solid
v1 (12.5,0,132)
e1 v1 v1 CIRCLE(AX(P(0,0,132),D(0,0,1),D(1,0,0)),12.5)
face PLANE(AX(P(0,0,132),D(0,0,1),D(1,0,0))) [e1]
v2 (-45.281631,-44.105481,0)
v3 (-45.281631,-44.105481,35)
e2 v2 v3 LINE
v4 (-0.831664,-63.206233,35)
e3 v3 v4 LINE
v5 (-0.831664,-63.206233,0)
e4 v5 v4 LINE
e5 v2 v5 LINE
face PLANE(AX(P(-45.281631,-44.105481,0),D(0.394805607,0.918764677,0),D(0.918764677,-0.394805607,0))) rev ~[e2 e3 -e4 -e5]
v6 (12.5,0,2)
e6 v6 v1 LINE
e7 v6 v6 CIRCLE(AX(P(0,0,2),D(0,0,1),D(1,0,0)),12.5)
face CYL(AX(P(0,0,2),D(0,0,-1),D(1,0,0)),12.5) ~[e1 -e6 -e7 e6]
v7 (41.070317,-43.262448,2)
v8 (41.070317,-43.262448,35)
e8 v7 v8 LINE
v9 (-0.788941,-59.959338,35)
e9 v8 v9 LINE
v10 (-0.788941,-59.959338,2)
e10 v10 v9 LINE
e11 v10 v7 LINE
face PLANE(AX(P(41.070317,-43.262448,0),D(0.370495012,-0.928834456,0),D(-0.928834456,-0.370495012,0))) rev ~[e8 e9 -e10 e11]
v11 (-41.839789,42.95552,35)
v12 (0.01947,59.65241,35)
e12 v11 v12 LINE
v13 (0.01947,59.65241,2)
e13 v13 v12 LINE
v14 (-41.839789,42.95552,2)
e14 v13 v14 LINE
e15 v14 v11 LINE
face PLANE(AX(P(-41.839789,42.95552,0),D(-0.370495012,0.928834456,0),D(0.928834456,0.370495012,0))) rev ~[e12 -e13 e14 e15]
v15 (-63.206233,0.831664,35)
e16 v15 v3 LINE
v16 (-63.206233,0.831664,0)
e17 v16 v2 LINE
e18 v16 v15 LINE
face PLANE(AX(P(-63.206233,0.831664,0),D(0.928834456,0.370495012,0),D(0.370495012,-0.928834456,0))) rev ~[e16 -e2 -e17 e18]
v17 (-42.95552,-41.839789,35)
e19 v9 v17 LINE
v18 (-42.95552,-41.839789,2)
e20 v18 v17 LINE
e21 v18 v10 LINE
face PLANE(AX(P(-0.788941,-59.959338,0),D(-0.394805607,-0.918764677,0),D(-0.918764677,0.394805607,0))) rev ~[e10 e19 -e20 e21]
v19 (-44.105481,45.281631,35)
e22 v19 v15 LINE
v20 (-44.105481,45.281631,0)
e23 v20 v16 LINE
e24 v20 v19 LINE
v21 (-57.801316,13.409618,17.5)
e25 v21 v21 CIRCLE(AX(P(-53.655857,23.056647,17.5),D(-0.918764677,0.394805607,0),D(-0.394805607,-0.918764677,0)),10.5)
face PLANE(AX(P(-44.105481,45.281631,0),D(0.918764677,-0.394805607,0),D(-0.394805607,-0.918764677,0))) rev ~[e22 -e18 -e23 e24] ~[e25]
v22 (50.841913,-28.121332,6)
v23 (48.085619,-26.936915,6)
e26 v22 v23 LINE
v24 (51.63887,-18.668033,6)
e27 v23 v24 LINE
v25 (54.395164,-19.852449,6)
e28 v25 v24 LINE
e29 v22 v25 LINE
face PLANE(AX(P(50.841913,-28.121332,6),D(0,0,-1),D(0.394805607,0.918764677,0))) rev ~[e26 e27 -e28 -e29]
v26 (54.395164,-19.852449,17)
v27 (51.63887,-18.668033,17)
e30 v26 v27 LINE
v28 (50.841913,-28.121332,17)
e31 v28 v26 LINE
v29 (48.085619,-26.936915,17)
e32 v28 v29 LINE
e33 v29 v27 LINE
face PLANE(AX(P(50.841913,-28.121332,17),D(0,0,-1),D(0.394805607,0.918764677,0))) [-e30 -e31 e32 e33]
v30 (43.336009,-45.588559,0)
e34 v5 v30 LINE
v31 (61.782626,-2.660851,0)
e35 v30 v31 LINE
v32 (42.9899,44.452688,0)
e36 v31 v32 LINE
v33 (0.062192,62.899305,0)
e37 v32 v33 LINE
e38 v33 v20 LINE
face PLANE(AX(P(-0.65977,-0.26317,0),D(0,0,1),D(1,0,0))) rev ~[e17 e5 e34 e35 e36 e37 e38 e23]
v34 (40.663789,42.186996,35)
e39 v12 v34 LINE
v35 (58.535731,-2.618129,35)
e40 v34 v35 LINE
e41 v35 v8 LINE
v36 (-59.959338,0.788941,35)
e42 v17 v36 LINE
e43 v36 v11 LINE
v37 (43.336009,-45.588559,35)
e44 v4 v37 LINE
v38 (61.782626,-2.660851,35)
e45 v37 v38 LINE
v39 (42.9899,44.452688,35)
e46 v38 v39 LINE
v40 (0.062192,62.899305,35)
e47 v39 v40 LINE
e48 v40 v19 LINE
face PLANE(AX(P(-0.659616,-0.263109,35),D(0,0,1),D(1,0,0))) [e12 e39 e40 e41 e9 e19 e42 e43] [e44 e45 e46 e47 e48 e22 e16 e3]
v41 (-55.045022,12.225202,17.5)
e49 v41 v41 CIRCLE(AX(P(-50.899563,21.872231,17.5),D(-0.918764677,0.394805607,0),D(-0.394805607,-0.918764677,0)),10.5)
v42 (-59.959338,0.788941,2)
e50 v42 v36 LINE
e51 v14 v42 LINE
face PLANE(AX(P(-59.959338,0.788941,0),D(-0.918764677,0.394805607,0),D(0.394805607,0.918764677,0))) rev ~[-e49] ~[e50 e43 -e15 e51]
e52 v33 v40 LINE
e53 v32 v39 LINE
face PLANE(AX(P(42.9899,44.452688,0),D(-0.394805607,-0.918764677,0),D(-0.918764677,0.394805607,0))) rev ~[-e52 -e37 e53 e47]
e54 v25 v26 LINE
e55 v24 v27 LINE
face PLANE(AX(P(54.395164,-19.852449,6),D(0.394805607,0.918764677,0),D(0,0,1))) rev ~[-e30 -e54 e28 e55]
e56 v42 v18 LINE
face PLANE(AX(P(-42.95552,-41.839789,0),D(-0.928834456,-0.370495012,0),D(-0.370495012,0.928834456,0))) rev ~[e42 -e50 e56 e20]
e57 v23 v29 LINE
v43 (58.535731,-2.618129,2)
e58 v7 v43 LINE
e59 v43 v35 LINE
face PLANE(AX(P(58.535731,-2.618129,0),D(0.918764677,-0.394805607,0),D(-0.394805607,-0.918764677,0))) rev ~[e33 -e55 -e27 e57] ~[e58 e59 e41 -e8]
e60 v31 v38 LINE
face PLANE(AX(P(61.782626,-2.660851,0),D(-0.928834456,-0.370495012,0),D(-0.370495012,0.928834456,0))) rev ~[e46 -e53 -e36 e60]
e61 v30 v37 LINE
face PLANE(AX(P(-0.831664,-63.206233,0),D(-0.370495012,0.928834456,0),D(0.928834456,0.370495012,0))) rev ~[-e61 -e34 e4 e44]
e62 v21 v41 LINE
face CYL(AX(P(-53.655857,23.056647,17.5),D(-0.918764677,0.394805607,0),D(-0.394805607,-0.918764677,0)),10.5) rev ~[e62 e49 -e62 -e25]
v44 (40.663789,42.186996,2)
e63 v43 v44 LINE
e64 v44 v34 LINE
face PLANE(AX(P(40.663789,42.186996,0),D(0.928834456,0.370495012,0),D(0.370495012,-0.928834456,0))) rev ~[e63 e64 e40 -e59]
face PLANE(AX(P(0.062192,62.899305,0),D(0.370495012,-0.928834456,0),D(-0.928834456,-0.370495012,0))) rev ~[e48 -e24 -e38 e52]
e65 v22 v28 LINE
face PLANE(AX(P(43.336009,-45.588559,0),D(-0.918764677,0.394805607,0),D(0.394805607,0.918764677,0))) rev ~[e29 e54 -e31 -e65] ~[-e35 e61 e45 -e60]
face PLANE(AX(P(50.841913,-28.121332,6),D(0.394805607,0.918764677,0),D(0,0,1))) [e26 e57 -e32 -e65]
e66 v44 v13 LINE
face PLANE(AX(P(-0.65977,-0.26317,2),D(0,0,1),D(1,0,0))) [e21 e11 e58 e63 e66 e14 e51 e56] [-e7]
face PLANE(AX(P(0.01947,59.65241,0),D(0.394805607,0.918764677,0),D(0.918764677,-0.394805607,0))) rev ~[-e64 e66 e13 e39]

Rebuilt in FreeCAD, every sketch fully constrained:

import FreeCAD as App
import Part
import Sketcher

V = App.Vector
Q = App.Units.Quantity


def add_polygon(sketch, points):
    """Adds a closed chain of lines whose ends are joined by coincident constraints."""
    first, n = sketch.GeometryCount, len(points)
    for a, b in zip(points, points[1:] + points[:1]):
        sketch.addGeometry(Part.LineSegment(App.Vector(*a, 0), App.Vector(*b, 0)), False)
    for i in range(n):
        sketch.addConstraint(Sketcher.Constraint("Coincident", first + i, 2, first + (i + 1) % n, 1))

doc = App.newDocument("Part")
params = doc.addObject("Spreadsheet::Sheet", "Params")
for row, (alias, value) in enumerate([
    ("pad1_length", "35 mm"),
    ("pad2_length", "2 mm"),
    ("sketch3_width", "9 mm"),
    ("sketch3_height", "11 mm"),
    ("pocket1_length", "3 mm"),
    ("sketch4_diameter", "25 mm"),
    ("pad3_length", "130 mm"),
    ("sketch5_diameter", "21 mm"),
    ("pocket2_length", "3 mm"),
], start=1):
    params.set(f"A{row}", alias)
    params.set(f"B{row}", "=" + value)
    params.setAlias(f"B{row}", alias)

body = doc.addObject("PartDesign::Body", "Body")

# Sketch on XY plane
sketch1 = doc.addObject("Sketcher::SketchObject", "Sketch")
body.addObject(sketch1)
sketch1.AttachmentSupport = (doc.XY_Plane, [""])
sketch1.MapMode = "FlatFace"
add_polygon(sketch1, [(0.062192, 62.899305), (-44.105481, 45.281631), (-63.206233, 0.831664), (-45.281631, -44.105481), (-0.831664, -63.206233), (43.336009, -45.588559), (61.782626, -2.660851), (42.9899, 44.452688)])  # lines 0-7
add_polygon(sketch1, [(-0.788941, -59.959338), (-42.95552, -41.839789), (-59.959338, 0.788941), (-41.839789, 42.95552), (0.01947, 59.65241), (40.663789, 42.186996), (58.535731, -2.618129), (41.070317, -43.262448)])  # lines 8-15
sketch1.addConstraint(Sketcher.Constraint("Perpendicular", 0, 2))
sketch1.addConstraint(Sketcher.Constraint("Perpendicular", 1, 3))
sketch1.addConstraint(Sketcher.Constraint("Perpendicular", 2, 4))
sketch1.addConstraint(Sketcher.Constraint("Perpendicular", 3, 5))
sketch1.addConstraint(Sketcher.Constraint("Perpendicular", 4, 6))
sketch1.addConstraint(Sketcher.Constraint("Perpendicular", 5, 7))
sketch1.addConstraint(Sketcher.Constraint("Parallel", 7, 8))
sketch1.addConstraint(Sketcher.Constraint("Parallel", 6, 9))
sketch1.addConstraint(Sketcher.Constraint("Perpendicular", 8, 10))
sketch1.addConstraint(Sketcher.Constraint("Perpendicular", 9, 11))
sketch1.addConstraint(Sketcher.Constraint("Perpendicular", 10, 12))
sketch1.addConstraint(Sketcher.Constraint("Perpendicular", 11, 13))
sketch1.addConstraint(Sketcher.Constraint("Perpendicular", 12, 14))
sketch1.addConstraint(Sketcher.Constraint("Perpendicular", 13, 15))
sketch1.addConstraint(Sketcher.Constraint("Equal", 1, 2))
sketch1.addConstraint(Sketcher.Constraint("Equal", 2, 3))
sketch1.addConstraint(Sketcher.Constraint("Equal", 0, 4))
sketch1.addConstraint(Sketcher.Constraint("Equal", 5, 7))
sketch1.addConstraint(Sketcher.Constraint("Equal", 8, 9))
sketch1.addConstraint(Sketcher.Constraint("Equal", 9, 10))
sketch1.addConstraint(Sketcher.Constraint("Equal", 12, 14))
sketch1.addConstraint(Sketcher.Constraint("DistanceX", -1, 1, 6, 2, Q("42.9899 mm")))
sketch1.addConstraint(Sketcher.Constraint("Distance", 5, Q("46.72329 mm")))
sketch1.addConstraint(Sketcher.Constraint("Distance", 6, Q("50.72329 mm")))
sketch1.addConstraint(Sketcher.Constraint("Distance", 12, Q("44.238008 mm")))
sketch1.addConstraint(Sketcher.Constraint("Distance", 13, Q("48.238008 mm")))
sketch1.addConstraint(Sketcher.Constraint("DistanceX", 0, 2, -1, 1, Q("44.105481 mm")))
sketch1.addConstraint(Sketcher.Constraint("DistanceY", -1, 1, 0, 2, Q("45.281631 mm")))
sketch1.addConstraint(Sketcher.Constraint("DistanceX", 2, 2, -1, 1, Q("45.281631 mm")))
sketch1.addConstraint(Sketcher.Constraint("DistanceX", 8, 2, -1, 1, Q("42.95552 mm")))
sketch1.addConstraint(Sketcher.Constraint("DistanceY", 8, 2, -1, 1, Q("41.839789 mm")))
sketch1.addConstraint(Sketcher.Constraint("DistanceX", -1, 1, 11, 2, Q("0.01947 mm")))
pad1 = doc.addObject("PartDesign::Pad", "Pad")
body.addObject(pad1)
pad1.Profile = sketch1
pad1.setExpression("Length", "Params.pad1_length")

# Sketch on XY plane
sketch2 = doc.addObject("Sketcher::SketchObject", "Sketch001")
body.addObject(sketch2)
sketch2.AttachmentSupport = (doc.XY_Plane, [""])
sketch2.MapMode = "FlatFace"
add_polygon(sketch2, [(-41.839789, 42.95552), (-59.959338, 0.788941), (-42.95552, -41.839789), (-0.788941, -59.959338), (41.070317, -43.262448), (58.535731, -2.618129), (40.663789, 42.186996), (0.01947, 59.65241)])  # lines 0-7
sketch2.addConstraint(Sketcher.Constraint("Perpendicular", 0, 2))
sketch2.addConstraint(Sketcher.Constraint("Perpendicular", 1, 3))
sketch2.addConstraint(Sketcher.Constraint("Perpendicular", 2, 4))
sketch2.addConstraint(Sketcher.Constraint("Perpendicular", 3, 5))
sketch2.addConstraint(Sketcher.Constraint("Perpendicular", 4, 6))
sketch2.addConstraint(Sketcher.Constraint("Perpendicular", 5, 7))
sketch2.addConstraint(Sketcher.Constraint("Equal", 0, 1))
sketch2.addConstraint(Sketcher.Constraint("Equal", 1, 2))
sketch2.addConstraint(Sketcher.Constraint("Equal", 4, 6))
sketch2.addConstraint(Sketcher.Constraint("Equal", 3, 7))
sketch2.addConstraint(Sketcher.Constraint("DistanceY", 1, 2, 6, 2, Q("101.492198 mm")))
sketch2.addConstraint(Sketcher.Constraint("Distance", 4, Q("44.238008 mm")))
sketch2.addConstraint(Sketcher.Constraint("Distance", 5, Q("48.238008 mm")))
sketch2.addConstraint(Sketcher.Constraint("DistanceY", -1, 1, 0, 2, Q("0.788941 mm")))
sketch2.addConstraint(Sketcher.Constraint("DistanceX", 1, 2, -1, 1, Q("42.95552 mm")))
sketch2.addConstraint(Sketcher.Constraint("DistanceY", 1, 2, -1, 1, Q("41.839789 mm")))
pad2 = doc.addObject("PartDesign::Pad", "Pad001")
body.addObject(pad2)
pad2.Profile = sketch2
pad2.setExpression("Length", "Params.pad2_length")

# Sketch on an angled plane
sketch3 = doc.addObject("Sketcher::SketchObject", "Sketch002")
body.addObject(sketch3)
sketch3.Placement = App.Placement(V(53.117657, -22.825376, 0), App.Rotation(V(0.394805607, 0.918764677, 0), V(0, 0, 0.999999999), V(0.918764677, -0.394805607, 0), "ZXY"))
add_polygon(sketch3, [(-5.764214, 17), (-5.764214, 6), (3.235786, 6), (3.235786, 17)])  # lines 0-3
sketch3.addConstraint(Sketcher.Constraint("Vertical", 0))
sketch3.addConstraint(Sketcher.Constraint("Horizontal", 1))
sketch3.addConstraint(Sketcher.Constraint("Vertical", 2))
sketch3.addConstraint(Sketcher.Constraint("Horizontal", 3))
sketch3.addConstraint(Sketcher.Constraint("DistanceX", 1, 1, 1, 2, Q("9 mm")))
sketch3.addConstraint(Sketcher.Constraint("DistanceY", 0, 2, 0, 1, Q("11 mm")))
sketch3.addConstraint(Sketcher.Constraint("DistanceY", -1, 1, 0, 2, Q("6 mm")))
sketch3.addConstraint(Sketcher.Constraint("DistanceX", 0, 2, -1, 1, Q("5.764214 mm")))
sketch3.setExpression("Constraints[8]", "Params.sketch3_width")
sketch3.setExpression("Constraints[9]", "Params.sketch3_height")
pocket1 = doc.addObject("PartDesign::Pocket", "Pocket")
body.addObject(pocket1)
pocket1.Profile = sketch3
pocket1.setExpression("Length", "Params.pocket1_length")

# Sketch on XY plane
sketch4 = doc.addObject("Sketcher::SketchObject", "Sketch003")
body.addObject(sketch4)
sketch4.AttachmentSupport = (doc.XY_Plane, [""])
sketch4.MapMode = "FlatFace"
sketch4.AttachmentOffset = App.Placement(V(0, 0, 2), App.Rotation())
sketch4.addGeometry(Part.Circle(V(0, 0, 0), V(0, 0, 1), 12.5), False)
sketch4.addConstraint(Sketcher.Constraint("Coincident", 0, 3, -1, 1))
sketch4.addConstraint(Sketcher.Constraint("Diameter", 0, Q("25 mm")))
sketch4.setExpression("Constraints[1]", "Params.sketch4_diameter")
pad3 = doc.addObject("PartDesign::Pad", "Pad002")
body.addObject(pad3)
pad3.Profile = sketch4
pad3.setExpression("Length", "Params.pad3_length")

# Sketch on an angled plane
sketch5 = doc.addObject("Sketcher::SketchObject", "Sketch004")
body.addObject(sketch5)
sketch5.Placement = App.Placement(V(-53.655857, 23.056647, 0), App.Rotation(V(-0.394805607, -0.918764677, 0), V(0, 0, 0.999999999), V(-0.918764677, 0.394805607, 0), "ZXY"))
sketch5.addGeometry(Part.Circle(V(0, 17.5, 0), V(0, 0, 1), 10.5), False)
sketch5.addConstraint(Sketcher.Constraint("PointOnObject", 0, 3, -2))
sketch5.addConstraint(Sketcher.Constraint("Diameter", 0, Q("21 mm")))
sketch5.addConstraint(Sketcher.Constraint("DistanceY", -1, 1, 0, 3, Q("17.5 mm")))
sketch5.setExpression("Constraints[1]", "Params.sketch5_diameter")
pocket2 = doc.addObject("PartDesign::Pocket", "Pocket001")
body.addObject(pocket2)
pocket2.Profile = sketch5
pocket2.setExpression("Length", "Params.pocket2_length")

doc.recompute()
